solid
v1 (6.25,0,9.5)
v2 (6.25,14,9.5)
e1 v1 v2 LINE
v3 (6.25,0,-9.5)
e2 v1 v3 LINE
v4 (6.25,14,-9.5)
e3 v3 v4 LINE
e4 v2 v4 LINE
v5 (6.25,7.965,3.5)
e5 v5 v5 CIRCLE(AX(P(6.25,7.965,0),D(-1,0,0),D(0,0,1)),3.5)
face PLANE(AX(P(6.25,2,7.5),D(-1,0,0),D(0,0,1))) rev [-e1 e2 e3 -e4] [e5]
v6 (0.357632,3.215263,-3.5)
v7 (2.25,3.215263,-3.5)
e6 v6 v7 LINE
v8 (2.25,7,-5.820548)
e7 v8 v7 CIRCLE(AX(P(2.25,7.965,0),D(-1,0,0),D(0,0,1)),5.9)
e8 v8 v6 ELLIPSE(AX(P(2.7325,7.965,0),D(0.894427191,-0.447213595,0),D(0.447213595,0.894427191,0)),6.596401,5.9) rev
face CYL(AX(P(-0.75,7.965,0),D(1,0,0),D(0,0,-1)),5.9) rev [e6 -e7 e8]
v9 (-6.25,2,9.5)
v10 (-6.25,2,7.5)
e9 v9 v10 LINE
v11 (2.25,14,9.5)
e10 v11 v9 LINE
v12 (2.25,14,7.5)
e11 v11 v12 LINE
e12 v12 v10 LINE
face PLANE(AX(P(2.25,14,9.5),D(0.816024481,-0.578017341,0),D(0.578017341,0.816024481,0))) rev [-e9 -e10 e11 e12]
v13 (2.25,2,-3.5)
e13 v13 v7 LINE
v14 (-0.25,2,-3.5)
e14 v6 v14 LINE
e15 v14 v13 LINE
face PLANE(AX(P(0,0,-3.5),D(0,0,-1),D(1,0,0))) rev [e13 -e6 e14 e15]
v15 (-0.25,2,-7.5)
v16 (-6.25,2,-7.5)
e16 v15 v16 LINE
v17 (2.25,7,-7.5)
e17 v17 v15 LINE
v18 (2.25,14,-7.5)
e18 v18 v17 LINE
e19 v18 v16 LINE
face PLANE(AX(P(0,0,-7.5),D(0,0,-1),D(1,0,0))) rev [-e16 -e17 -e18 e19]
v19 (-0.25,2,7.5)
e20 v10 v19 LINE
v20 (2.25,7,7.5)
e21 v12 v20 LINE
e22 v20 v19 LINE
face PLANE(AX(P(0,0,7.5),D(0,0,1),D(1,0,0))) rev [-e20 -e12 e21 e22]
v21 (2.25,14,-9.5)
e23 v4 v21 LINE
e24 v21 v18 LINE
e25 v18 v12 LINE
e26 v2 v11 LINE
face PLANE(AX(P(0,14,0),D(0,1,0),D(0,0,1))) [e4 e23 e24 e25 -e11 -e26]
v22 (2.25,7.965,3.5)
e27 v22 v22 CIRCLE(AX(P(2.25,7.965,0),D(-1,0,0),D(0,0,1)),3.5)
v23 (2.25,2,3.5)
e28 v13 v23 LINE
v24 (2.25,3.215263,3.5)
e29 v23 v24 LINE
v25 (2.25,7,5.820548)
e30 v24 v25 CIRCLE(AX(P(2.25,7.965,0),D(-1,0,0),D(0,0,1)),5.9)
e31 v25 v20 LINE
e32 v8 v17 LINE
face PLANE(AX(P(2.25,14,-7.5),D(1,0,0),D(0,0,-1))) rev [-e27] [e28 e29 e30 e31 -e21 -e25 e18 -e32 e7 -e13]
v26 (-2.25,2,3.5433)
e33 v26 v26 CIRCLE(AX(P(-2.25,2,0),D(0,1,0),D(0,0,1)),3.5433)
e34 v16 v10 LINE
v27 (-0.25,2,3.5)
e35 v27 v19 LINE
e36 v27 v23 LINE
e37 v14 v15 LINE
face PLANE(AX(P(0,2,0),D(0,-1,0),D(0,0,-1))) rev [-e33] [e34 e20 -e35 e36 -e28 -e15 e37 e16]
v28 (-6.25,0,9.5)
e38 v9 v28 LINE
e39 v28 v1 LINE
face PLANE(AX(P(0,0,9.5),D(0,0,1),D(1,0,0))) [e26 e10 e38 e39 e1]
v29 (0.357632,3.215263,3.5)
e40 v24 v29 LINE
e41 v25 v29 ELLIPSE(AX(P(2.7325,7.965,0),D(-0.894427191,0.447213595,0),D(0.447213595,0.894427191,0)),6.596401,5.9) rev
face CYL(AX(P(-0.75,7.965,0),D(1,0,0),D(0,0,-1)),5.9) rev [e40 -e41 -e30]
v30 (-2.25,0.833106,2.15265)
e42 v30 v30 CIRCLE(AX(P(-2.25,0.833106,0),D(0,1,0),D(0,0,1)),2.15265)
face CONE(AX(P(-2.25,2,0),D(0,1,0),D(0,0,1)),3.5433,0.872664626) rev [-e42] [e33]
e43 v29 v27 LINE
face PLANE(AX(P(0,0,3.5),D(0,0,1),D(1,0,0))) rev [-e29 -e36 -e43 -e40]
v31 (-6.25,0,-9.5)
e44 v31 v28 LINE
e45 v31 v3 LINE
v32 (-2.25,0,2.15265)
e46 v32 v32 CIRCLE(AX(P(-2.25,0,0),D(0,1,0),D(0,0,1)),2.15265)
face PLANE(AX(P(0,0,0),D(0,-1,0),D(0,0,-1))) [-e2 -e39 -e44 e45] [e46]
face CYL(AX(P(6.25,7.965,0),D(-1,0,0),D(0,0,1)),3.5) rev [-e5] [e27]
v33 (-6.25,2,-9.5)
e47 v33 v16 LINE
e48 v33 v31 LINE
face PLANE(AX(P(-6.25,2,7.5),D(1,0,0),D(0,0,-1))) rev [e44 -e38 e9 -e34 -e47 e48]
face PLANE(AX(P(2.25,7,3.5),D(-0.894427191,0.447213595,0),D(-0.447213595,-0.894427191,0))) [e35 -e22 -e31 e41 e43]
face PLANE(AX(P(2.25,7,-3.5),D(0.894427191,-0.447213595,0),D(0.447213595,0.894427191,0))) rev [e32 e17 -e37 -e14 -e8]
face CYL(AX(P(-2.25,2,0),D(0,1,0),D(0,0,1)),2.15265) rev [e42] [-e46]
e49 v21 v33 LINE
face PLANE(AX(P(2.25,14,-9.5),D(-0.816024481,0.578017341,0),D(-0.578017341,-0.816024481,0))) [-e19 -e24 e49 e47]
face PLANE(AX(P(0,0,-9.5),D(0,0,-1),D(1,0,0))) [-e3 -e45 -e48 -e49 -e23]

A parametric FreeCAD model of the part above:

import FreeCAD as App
import Part
import Sketcher
from FreeCAD import Vector
Q = App.Units.Quantity

doc = App.newDocument("Part")
body = doc.addObject("PartDesign::Body", "Body")

sketch1 = body.newObject("Sketcher::SketchObject", "Sketch")
sketch1.AttachmentSupport = (doc.getObject("XZ_Plane"), [""])
sketch1.MapMode = "FlatFace"
sketch1.addGeometry(Part.LineSegment(Vector(-6, -8, 0), Vector(-6, 8, 0)), False)
sketch1.addGeometry(Part.LineSegment(Vector(-6, 8, 0), Vector(6, 8, 0)), False)
sketch1.addGeometry(Part.LineSegment(Vector(6, 8, 0), Vector(6, -8, 0)), False)
sketch1.addGeometry(Part.LineSegment(Vector(6, -8, 0), Vector(-6, -8, 0)), False)
sketch1.addConstraint(Sketcher.Constraint("Coincident", 0, 2, 1, 1))
sketch1.addConstraint(Sketcher.Constraint("Coincident", 1, 2, 2, 1))
sketch1.addConstraint(Sketcher.Constraint("Coincident", 2, 2, 3, 1))
sketch1.addConstraint(Sketcher.Constraint("Coincident", 3, 2, 0, 1))
sketch1.addConstraint(Sketcher.Constraint("Vertical", 0))
sketch1.addConstraint(Sketcher.Constraint("Horizontal", 1))
sketch1.addConstraint(Sketcher.Constraint("Vertical", 2))
sketch1.addConstraint(Sketcher.Constraint("Horizontal", 3))
sketch1.addConstraint(Sketcher.Constraint("Symmetric", 0, 2, 2, 2, -1, 1))
sketch1.addConstraint(Sketcher.Constraint("DistanceY", 0, 1, 0, 2, 15.0))
sketch1.addConstraint(Sketcher.Constraint("DistanceX", 1, 1, 1, 2, 12.5))
pad1 = body.newObject("PartDesign::Pad", "Pad")
pad1.Profile = sketch1
pad1.Length = 2
pad1.Reversed = True

sketch2 = body.newObject("Sketcher::SketchObject", "Sketch001")
sketch2.AttachmentSupport = (doc.getObject("XZ_Plane"), [""])
sketch2.MapMode = "FlatFace"
sketch2.AttachmentOffset = App.Placement(Vector(0, 0, -2), App.Rotation())
sketch2.addGeometry(Part.LineSegment(Vector(2.2, -7.5, 0), Vector(2.2, 7.5, 0)), False)
sketch2.addGeometry(Part.LineSegment(Vector(2.2, 7.5, 0), Vector(6.2, 7.5, 0)), False)
sketch2.addGeometry(Part.LineSegment(Vector(6.2, 7.5, 0), Vector(6.2, -7.5, 0)), False)
sketch2.addGeometry(Part.LineSegment(Vector(6.2, -7.5, 0), Vector(2.2, -7.5, 0)), False)
sketch2.addConstraint(Sketcher.Constraint("Coincident", 0, 2, 1, 1))
sketch2.addConstraint(Sketcher.Constraint("Coincident", 1, 2, 2, 1))
sketch2.addConstraint(Sketcher.Constraint("Coincident", 2, 2, 3, 1))
sketch2.addConstraint(Sketcher.Constraint("Coincident", 3, 2, 0, 1))
sketch2.addConstraint(Sketcher.Constraint("Vertical", 0))
sketch2.addConstraint(Sketcher.Constraint("Horizontal", 1))
sketch2.addConstraint(Sketcher.Constraint("Vertical", 2))
sketch2.addConstraint(Sketcher.Constraint("Horizontal", 3))
sketch2.addConstraint(Sketcher.Constraint("DistanceX", 1, 1, 1, 2, 4.0))
sketch2.addConstraint(Sketcher.Constraint("DistanceY", 0, 1, 0, 2, 15.0))
sketch2.addConstraint(Sketcher.Constraint("DistanceY", -1, 1, 0, 2, 7.5))
sketch2.addConstraint(Sketcher.Constraint("DistanceX", -1, 1, 0, 2, 2.25))
pad2 = body.newObject("PartDesign::Pad", "Pad001")
pad2.Profile = sketch2
pad2.Length = 12
pad2.Reversed = True

sketch3 = body.newObject("Sketcher::SketchObject", "Sketch002")
sketch3.AttachmentSupport = (doc.getObject("XY_Plane"), [""])
sketch3.MapMode = "FlatFace"
sketch3.AttachmentOffset = App.Placement(Vector(0, 0, 7.5), App.Rotation())
sketch3.addGeometry(Part.LineSegment(Vector(2.2, 2, 0), Vector(2.2, 7, 0)), False)
sketch3.addGeometry(Part.LineSegment(Vector(2.2, 7, 0), Vector(-0.2, 2, 0)), False)
sketch3.addGeometry(Part.LineSegment(Vector(-0.2, 2, 0), Vector(2.2, 2, 0)), False)
sketch3.addConstraint(Sketcher.Constraint("Coincident", 0, 2, 1, 1))
sketch3.addConstraint(Sketcher.Constraint("Coincident", 1, 2, 2, 1))
sketch3.addConstraint(Sketcher.Constraint("Coincident", 2, 2, 0, 1))
sketch3.addConstraint(Sketcher.Constraint("Vertical", 0))
sketch3.addConstraint(Sketcher.Constraint("Horizontal", 2))
sketch3.addConstraint(Sketcher.Constraint("DistanceY", 0, 1, 0, 2, 5.0))
sketch3.addConstraint(Sketcher.Constraint("DistanceX", 2, 1, 2, 2, 2.5))
sketch3.addConstraint(Sketcher.Constraint("DistanceY", -1, 1, 0, 2, 7.0))
sketch3.addConstraint(Sketcher.Constraint("DistanceX", -1, 1, 0, 2, 2.25))
pad3 = body.newObject("PartDesign::Pad", "Pad002")
pad3.Profile = sketch3
pad3.Length = 4
pad3.Reversed = True

sketch4 = body.newObject("Sketcher::SketchObject", "Sketch003")
sketch4.AttachmentSupport = (doc.getObject("YZ_Plane"), [""])
sketch4.MapMode = "FlatFace"
sketch4.AttachmentOffset = App.Placement(Vector(0, 0, 2.25), App.Rotation())
sketch4.addGeometry(Part.Circle(Vector(8, 0, 0), Vector(0, 0, 1), 3.5), False)
sketch4.addConstraint(Sketcher.Constraint("PointOnObject", 0, 3, -1))
sketch4.addConstraint(Sketcher.Constraint("Diameter", 0, 7.0))
sketch4.addConstraint(Sketcher.Constraint("DistanceX", -1, 1, 0, 3, 7.965))
pocket1 = body.newObject("PartDesign::Pocket", "Pocket")
pocket1.Profile = sketch4
pocket1.Type = "ThroughAll"
pocket1.Reversed = True

sketch5 = body.newObject("Sketcher::SketchObject", "Sketch004")
sketch5.AttachmentSupport = (doc.getObject("YZ_Plane"), [""])
sketch5.MapMode = "FlatFace"
sketch5.AttachmentOffset = App.Placement(Vector(0, 0, -2.25), App.Rotation())
sketch5.addGeometry(Part.LineSegment(Vector(0, 0, 0), Vector(2, 0, 0)), False)
sketch5.addGeometry(Part.LineSegment(Vector(2, 0, 0), Vector(2, 3.5, 0)), False)
sketch5.addGeometry(Part.LineSegment(Vector(2, 3.5, 0), Vector(0.8, 2.2, 0)), False)
sketch5.addGeometry(Part.LineSegment(Vector(0.8, 2.2, 0), Vector(0, 2.2, 0)), False)
sketch5.addGeometry(Part.LineSegment(Vector(0, 2.2, 0), Vector(0, 0, 0)), False)
sketch5.addConstraint(Sketcher.Constraint("Coincident", 0, 2, 1, 1))
sketch5.addConstraint(Sketcher.Constraint("Coincident", 1, 2, 2, 1))
sketch5.addConstraint(Sketcher.Constraint("Coincident", 2, 2, 3, 1))
sketch5.addConstraint(Sketcher.Constraint("Coincident", 3, 2, 4, 1))
sketch5.addConstraint(Sketcher.Constraint("Coincident", 4, 2, 0, 1))
sketch5.addConstraint(Sketcher.Constraint("Horizontal", 0))
sketch5.addConstraint(Sketcher.Constraint("Vertical", 1))
sketch5.addConstraint(Sketcher.Constraint("Horizontal", 3))
sketch5.addConstraint(Sketcher.Constraint("Vertical", 4))
sketch5.addConstraint(Sketcher.Constraint("Coincident", 4, 2, -1, 1))
sketch5.addConstraint(Sketcher.Constraint("DistanceX", 0, 1, 0, 2, 2.0))
sketch5.addConstraint(Sketcher.Constraint("Angle", 2, Q("-130 deg")))
sketch5.addConstraint(Sketcher.Constraint("DistanceY", 1, 1, 1, 2, 3.5433))
sketch5.addConstraint(Sketcher.Constraint("DistanceY", 4, 2, 4, 1, 2.15265))
groove = body.newObject("PartDesign::Groove", "Groove")
groove.Profile = sketch5
groove.ReferenceAxis = (sketch5, ["H_Axis"])
groove.Angle = 360
doc.recompute()

mirrored = body.newObject("PartDesign::Mirrored", "Mirrored")
mirrored.Originals = [pad3]
mirrored.MirrorPlane = (doc.getObject("XY_Plane"), [""])
body.Tip = mirrored

sketch6 = body.newObject("Sketcher::SketchObject", "Sketch005")
sketch6.AttachmentSupport = (doc.getObject("YZ_Plane"), [""])
sketch6.MapMode = "FlatFace"
sketch6.AttachmentOffset = App.Placement(Vector(0, 0, 2.25), App.Rotation())
sketch6.addGeometry(Part.Circle(Vector(8, 0, 0), Vector(0, 0, 1), 6), False)
sketch6.addConstraint(Sketcher.Constraint("PointOnObject", 0, 3, -1))
sketch6.addConstraint(Sketcher.Constraint("Diameter", 0, 11.8))
sketch6.addConstraint(Sketcher.Constraint("DistanceX", -1, 1, 0, 3, 7.965))
pocket2 = body.newObject("PartDesign::Pocket", "Pocket001")
pocket2.Profile = sketch6
pocket2.Length = 3

sketch7 = body.newObject("Sketcher::SketchObject", "Sketch006")
sketch7.AttachmentSupport = (doc.getObject("XY_Plane"), [""])
sketch7.MapMode = "FlatFace"
sketch7.AttachmentOffset = App.Placement(Vector(0, 0, 7.5), App.Rotation())
sketch7.addGeometry(Part.LineSegment(Vector(2.2, 14, 0), Vector(-6.2, 2, 0)), False)
sketch7.addGeometry(Part.LineSegment(Vector(-6.2, 2, 0), Vector(-6.2, 0, 0)), False)
sketch7.addGeometry(Part.LineSegment(Vector(-6.2, 0, 0), Vector(6.2, 0, 0)), False)
sketch7.addGeometry(Part.LineSegment(Vector(6.2, 0, 0), Vector(6.2, 14, 0)), False)
sketch7.addGeometry(Part.LineSegment(Vector(6.2, 14, 0), Vector(2.2, 14, 0)), False)
sketch7.addConstraint(Sketcher.Constraint("Coincident", 0, 2, 1, 1))
sketch7.addConstraint(Sketcher.Constraint("Coincident", 1, 2, 2, 1))
sketch7.addConstraint(Sketcher.Constraint("Coincident", 2, 2, 3, 1))
sketch7.addConstraint(Sketcher.Constraint("Coincident", 3, 2, 4, 1))
sketch7.addConstraint(Sketcher.Constraint("Coincident", 4, 2, 0, 1))
sketch7.addConstraint(Sketcher.Constraint("Vertical", 1))
sketch7.addConstraint(Sketcher.Constraint("Horizontal", 2))
sketch7.addConstraint(Sketcher.Constraint("Vertical", 3))
sketch7.addConstraint(Sketcher.Constraint("Horizontal", 4))
sketch7.addConstraint(Sketcher.Constraint("Symmetric", 1, 2, 2, 2, -1, 1))
sketch7.addConstraint(Sketcher.Constraint("DistanceX", 4, 2, 4, 1, 4.0))
sketch7.addConstraint(Sketcher.Constraint("DistanceY", 1, 2, 1, 1, 2.0))
sketch7.addConstraint(Sketcher.Constraint("DistanceY", 3, 1, 3, 2, 14.0))
sketch7.addConstraint(Sketcher.Constraint("DistanceX", 2, 1, 2, 2, 12.5))
pad4 = body.newObject("PartDesign::Pad", "Pad003")
pad4.Profile = sketch7
pad4.Length = 2
doc.recompute()

mirrored2 = body.newObject("PartDesign::Mirrored", "Mirrored001")
mirrored2.Originals = [pad4]
mirrored2.MirrorPlane = (doc.getObject("XY_Plane"), [""])
body.Tip = mirrored2

doc.recompute()
